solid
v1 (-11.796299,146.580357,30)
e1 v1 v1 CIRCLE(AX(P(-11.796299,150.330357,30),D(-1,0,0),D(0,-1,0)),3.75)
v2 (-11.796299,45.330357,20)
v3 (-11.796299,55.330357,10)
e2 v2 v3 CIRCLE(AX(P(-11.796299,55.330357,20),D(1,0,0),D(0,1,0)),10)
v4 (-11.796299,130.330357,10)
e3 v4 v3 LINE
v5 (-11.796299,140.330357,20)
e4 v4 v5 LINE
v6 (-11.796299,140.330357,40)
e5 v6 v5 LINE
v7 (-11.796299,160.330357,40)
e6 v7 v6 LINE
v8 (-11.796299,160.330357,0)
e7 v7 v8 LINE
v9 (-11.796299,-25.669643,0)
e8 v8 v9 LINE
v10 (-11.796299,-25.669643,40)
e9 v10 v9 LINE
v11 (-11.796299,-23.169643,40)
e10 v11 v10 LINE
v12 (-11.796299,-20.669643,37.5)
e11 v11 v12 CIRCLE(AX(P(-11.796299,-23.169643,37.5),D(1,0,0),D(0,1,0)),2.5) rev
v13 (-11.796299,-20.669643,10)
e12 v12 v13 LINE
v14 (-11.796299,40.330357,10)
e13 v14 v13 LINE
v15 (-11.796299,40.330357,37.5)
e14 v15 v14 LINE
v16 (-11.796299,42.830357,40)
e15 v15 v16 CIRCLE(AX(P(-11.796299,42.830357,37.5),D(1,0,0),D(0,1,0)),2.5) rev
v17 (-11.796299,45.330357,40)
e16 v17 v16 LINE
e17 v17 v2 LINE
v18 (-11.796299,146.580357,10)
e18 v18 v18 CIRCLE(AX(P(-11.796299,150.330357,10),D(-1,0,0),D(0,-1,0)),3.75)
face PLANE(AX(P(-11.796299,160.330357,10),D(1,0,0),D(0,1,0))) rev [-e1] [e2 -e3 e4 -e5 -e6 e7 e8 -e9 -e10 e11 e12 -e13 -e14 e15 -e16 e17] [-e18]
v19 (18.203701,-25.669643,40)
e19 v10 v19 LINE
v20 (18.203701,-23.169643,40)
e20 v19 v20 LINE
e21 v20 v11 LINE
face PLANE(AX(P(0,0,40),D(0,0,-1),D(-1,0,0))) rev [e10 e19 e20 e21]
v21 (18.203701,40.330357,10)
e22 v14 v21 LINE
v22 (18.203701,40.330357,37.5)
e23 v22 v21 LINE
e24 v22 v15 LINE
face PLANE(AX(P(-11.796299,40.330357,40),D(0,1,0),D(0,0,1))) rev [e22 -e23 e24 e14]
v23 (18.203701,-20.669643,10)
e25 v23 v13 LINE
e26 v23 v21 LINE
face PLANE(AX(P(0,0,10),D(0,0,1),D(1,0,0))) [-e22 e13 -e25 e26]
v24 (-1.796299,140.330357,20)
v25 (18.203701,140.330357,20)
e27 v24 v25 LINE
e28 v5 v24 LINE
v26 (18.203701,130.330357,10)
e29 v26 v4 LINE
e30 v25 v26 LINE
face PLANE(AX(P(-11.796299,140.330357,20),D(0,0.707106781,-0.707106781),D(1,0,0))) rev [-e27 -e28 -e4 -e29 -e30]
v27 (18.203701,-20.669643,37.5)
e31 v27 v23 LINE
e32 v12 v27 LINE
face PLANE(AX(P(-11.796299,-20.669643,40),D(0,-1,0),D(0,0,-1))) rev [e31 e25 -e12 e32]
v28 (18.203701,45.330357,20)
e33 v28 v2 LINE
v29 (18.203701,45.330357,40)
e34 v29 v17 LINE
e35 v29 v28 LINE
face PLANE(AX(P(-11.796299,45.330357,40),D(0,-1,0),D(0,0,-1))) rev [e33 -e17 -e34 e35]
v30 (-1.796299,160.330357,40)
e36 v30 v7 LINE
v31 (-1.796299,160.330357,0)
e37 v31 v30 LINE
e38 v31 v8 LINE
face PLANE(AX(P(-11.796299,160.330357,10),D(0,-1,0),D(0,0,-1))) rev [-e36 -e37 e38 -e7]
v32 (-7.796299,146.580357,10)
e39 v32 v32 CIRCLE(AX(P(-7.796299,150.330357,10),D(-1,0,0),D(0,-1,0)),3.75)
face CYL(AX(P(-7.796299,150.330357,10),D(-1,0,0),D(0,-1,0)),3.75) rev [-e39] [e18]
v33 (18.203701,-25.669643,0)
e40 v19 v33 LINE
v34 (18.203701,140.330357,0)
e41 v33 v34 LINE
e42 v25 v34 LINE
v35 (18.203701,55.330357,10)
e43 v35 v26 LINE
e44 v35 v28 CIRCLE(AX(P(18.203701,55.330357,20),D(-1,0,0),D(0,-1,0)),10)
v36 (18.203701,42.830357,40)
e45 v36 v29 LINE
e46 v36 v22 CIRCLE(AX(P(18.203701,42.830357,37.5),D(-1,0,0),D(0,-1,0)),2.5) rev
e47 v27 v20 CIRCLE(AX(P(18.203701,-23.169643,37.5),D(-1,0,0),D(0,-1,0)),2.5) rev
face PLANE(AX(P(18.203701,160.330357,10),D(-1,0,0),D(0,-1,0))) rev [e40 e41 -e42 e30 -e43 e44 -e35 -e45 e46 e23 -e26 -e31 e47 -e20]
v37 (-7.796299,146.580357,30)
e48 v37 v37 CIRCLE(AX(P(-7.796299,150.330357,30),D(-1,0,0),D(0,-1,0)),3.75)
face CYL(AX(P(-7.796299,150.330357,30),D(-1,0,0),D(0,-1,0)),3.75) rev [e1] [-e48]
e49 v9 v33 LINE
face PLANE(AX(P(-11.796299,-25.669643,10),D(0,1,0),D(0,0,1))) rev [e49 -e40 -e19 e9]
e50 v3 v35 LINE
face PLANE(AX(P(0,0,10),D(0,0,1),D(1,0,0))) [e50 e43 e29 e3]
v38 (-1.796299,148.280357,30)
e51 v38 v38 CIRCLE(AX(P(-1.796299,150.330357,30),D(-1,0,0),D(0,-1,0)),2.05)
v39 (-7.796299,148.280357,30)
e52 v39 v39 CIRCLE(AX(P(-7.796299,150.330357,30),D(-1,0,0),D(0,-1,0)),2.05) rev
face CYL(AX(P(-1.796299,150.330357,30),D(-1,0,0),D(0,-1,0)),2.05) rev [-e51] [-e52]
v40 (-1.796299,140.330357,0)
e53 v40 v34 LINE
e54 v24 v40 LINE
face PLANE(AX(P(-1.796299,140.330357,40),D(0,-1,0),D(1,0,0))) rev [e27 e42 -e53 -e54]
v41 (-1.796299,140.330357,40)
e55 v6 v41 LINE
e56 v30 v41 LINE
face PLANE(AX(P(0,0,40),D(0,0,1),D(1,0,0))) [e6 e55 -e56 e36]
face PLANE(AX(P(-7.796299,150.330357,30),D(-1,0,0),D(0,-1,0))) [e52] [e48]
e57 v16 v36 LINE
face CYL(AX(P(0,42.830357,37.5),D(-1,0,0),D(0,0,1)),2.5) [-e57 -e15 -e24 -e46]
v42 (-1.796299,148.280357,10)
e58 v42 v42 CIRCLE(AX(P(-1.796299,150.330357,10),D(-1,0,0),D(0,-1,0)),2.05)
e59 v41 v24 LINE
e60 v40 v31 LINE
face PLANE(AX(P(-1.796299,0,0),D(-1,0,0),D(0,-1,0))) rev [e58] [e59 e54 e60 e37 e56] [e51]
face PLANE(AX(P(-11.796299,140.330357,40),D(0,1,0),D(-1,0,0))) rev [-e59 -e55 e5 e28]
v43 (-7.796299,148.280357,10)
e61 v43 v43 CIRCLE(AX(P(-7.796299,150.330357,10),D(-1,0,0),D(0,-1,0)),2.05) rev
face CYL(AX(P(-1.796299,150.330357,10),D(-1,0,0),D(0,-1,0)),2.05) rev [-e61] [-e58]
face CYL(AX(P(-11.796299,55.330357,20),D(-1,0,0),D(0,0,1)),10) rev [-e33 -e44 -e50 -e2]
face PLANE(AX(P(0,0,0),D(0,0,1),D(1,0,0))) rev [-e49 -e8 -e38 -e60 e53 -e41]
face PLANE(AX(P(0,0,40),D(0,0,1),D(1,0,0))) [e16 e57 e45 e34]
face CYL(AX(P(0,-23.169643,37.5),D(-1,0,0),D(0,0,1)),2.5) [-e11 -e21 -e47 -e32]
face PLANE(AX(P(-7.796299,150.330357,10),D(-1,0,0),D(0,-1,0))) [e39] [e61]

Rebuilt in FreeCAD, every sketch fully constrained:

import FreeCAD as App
import Part
import Sketcher

V = App.Vector
Q = App.Units.Quantity


def edges_at(feature, points):
    """Names of the edges that pass closest to the given points."""
    edges = feature.Shape.Edges
    near = lambda p: min(range(len(edges)), key=lambda i: edges[i].distToShape(Part.Vertex(*p))[0])
    return sorted({f"Edge{near(p) + 1}" for p in points})


def add_polygon(sketch, points):
    """Adds a closed chain of lines whose ends are joined by coincident constraints."""
    first, n = sketch.GeometryCount, len(points)
    for a, b in zip(points, points[1:] + points[:1]):
        sketch.addGeometry(Part.LineSegment(App.Vector(*a, 0), App.Vector(*b, 0)), False)
    for i in range(n):
        sketch.addConstraint(Sketcher.Constraint("Coincident", first + i, 2, first + (i + 1) % n, 1))

doc = App.newDocument("Part")
body = doc.addObject("PartDesign::Body", "Body")

# Sketch on XY plane
sketch1 = doc.addObject("Sketcher::SketchObject", "Sketch")
body.addObject(sketch1)
sketch1.AttachmentSupport = (doc.XY_Plane, [""])
sketch1.MapMode = "FlatFace"
add_polygon(sketch1, [(-11.796299, 160.330357), (-11.796299, -25.669643), (18.203701, -25.669643), (18.203701, 160.330357)])  # lines 0-3
sketch1.addConstraint([
    Sketcher.Constraint("Vertical", 0),
    Sketcher.Constraint("Horizontal", 1),
    Sketcher.Constraint("Vertical", 2),
    Sketcher.Constraint("Horizontal", 3),
    Sketcher.Constraint("DistanceX", 1, 1, 1, 2, Q("30 mm")),
    Sketcher.Constraint("DistanceY", 0, 2, 0, 1, Q("186 mm")),
    Sketcher.Constraint("DistanceX", 0, 2, -1, 1, Q("11.796299 mm")),
    Sketcher.Constraint("DistanceY", 0, 2, -1, 1, Q("25.669643 mm")),
])
pad1 = doc.addObject("PartDesign::Pad", "Pad")
body.addObject(pad1)
pad1.Profile = sketch1
pad1.Length = 10

# Sketch on XY plane
sketch2 = doc.addObject("Sketcher::SketchObject", "Sketch001")
body.addObject(sketch2)
sketch2.AttachmentSupport = (doc.XY_Plane, [""])
sketch2.MapMode = "FlatFace"
sketch2.AttachmentOffset = App.Placement(V(0, 0, 10), App.Rotation())
add_polygon(sketch2, [(-11.796299, -20.669643), (-11.796299, -25.669643), (18.203701, -25.669643), (18.203701, -20.669643)])  # lines 0-3
add_polygon(sketch2, [(-11.796299, 45.330357), (-11.796299, 40.330357), (18.203701, 40.330357), (18.203701, 45.330357)])  # lines 4-7
add_polygon(sketch2, [(-11.796299, 160.330357), (-11.796299, 140.330357), (18.203701, 140.330357), (18.203701, 160.330357)])  # lines 8-11
sketch2.addConstraint([
    Sketcher.Constraint("Vertical", 0),
    Sketcher.Constraint("Horizontal", 1),
    Sketcher.Constraint("Vertical", 2),
    Sketcher.Constraint("Horizontal", 3),
    Sketcher.Constraint("Vertical", 4),
    Sketcher.Constraint("Horizontal", 5),
    Sketcher.Constraint("Vertical", 6),
    Sketcher.Constraint("Horizontal", 7),
    Sketcher.Constraint("Vertical", 8),
    Sketcher.Constraint("Horizontal", 9),
    Sketcher.Constraint("Vertical", 10),
    Sketcher.Constraint("Horizontal", 11),
    Sketcher.Constraint("Vertical", 3, 2, 4, 2),
    Sketcher.Constraint("Vertical", 2, 2, 5, 2),
    Sketcher.Constraint("Vertical", 7, 2, 8, 2),
    Sketcher.Constraint("Vertical", 6, 2, 9, 2),
    Sketcher.Constraint("Equal", 2, 4),
    Sketcher.Constraint("DistanceX", 1, 1, 1, 2, Q("30 mm")),
    Sketcher.Constraint("DistanceY", 0, 2, 0, 1, Q("5 mm")),
    Sketcher.Constraint("DistanceY", 8, 2, 8, 1, Q("20 mm")),
    Sketcher.Constraint("DistanceY", 3, 2, 4, 2, Q("61 mm")),
    Sketcher.Constraint("DistanceY", 7, 2, 8, 2, Q("95 mm")),
    Sketcher.Constraint("DistanceX", 0, 2, -1, 1, Q("11.796299 mm")),
    Sketcher.Constraint("DistanceY", 0, 2, -1, 1, Q("25.669643 mm")),
])
pad2 = doc.addObject("PartDesign::Pad", "Pad001")
body.addObject(pad2)
pad2.Profile = sketch2
pad2.Length = 30
doc.recompute()

fillet = doc.addObject("PartDesign::Fillet", "Fillet")
body.addObject(fillet)
fillet.Base = (pad2, edges_at(pad2, [(3.204, -20.67, 40), (3.204, 40.33, 40)]))
fillet.Radius = 2.5
doc.recompute()

fillet2 = doc.addObject("PartDesign::Fillet", "Fillet001")
body.addObject(fillet2)
fillet2.Base = (fillet, edges_at(fillet, [(3.204, 45.33, 10)]))
fillet2.Radius = 10
doc.recompute()

chamfer = doc.addObject("PartDesign::Chamfer", "Chamfer")
body.addObject(chamfer)
chamfer.Base = (fillet2, edges_at(fillet2, [(3.204, 140.33, 10)]))
chamfer.Size = 10

# Sketch on YZ plane
sketch3 = doc.addObject("Sketcher::SketchObject", "Sketch002")
body.addObject(sketch3)
sketch3.AttachmentSupport = (doc.YZ_Plane, [""])
sketch3.MapMode = "FlatFace"
sketch3.AttachmentOffset = App.Placement(V(0, 0, 18.203701), App.Rotation())
add_polygon(sketch3, [(160.330357, 40), (140.330357, 40), (140.330357, 0), (160.330357, 0)])  # lines 0-3
sketch3.addConstraint([
    Sketcher.Constraint("Horizontal", 0),
    Sketcher.Constraint("Vertical", 1),
    Sketcher.Constraint("Horizontal", 2),
    Sketcher.Constraint("Vertical", 3),
    Sketcher.Constraint("PointOnObject", 1, 2, -1),
    Sketcher.Constraint("DistanceX", 0, 2, 0, 1, Q("20 mm")),
    Sketcher.Constraint("DistanceY", 1, 2, 1, 1, Q("40 mm")),
    Sketcher.Constraint("DistanceX", -1, 1, 0, 2, Q("140.330357 mm")),
])
pocket1 = doc.addObject("PartDesign::Pocket", "Pocket")
body.addObject(pocket1)
pocket1.Profile = sketch3
pocket1.Length = 20

# Sketch on YZ plane
sketch4 = doc.addObject("Sketcher::SketchObject", "Sketch003")
body.addObject(sketch4)
sketch4.AttachmentSupport = (doc.YZ_Plane, [""])
sketch4.MapMode = "FlatFace"
sketch4.AttachmentOffset = App.Placement(V(0, 0, -11.796299), App.Rotation())
sketch4.addGeometry([
    Part.Circle(V(150.330357, 10, 0), V(0, 0, 1), 2.05),
    Part.Circle(V(150.330357, 30, 0), V(0, 0, 1), 2.05),
], False)
sketch4.addConstraint([
    Sketcher.Constraint("Equal", 0, 1),
    Sketcher.Constraint("Vertical", 0, 3, 1, 3),
    Sketcher.Constraint("Diameter", 0, Q("4.1 mm")),
    Sketcher.Constraint("DistanceY", -1, 1, 0, 3, Q("10 mm")),
    Sketcher.Constraint("DistanceY", -1, 1, 1, 3, Q("30 mm")),
    Sketcher.Constraint("DistanceX", -1, 1, 0, 3, Q("150.330357 mm")),
])
pocket2 = doc.addObject("PartDesign::Pocket", "Pocket001")
body.addObject(pocket2)
pocket2.Profile = sketch4
pocket2.Length = 10
pocket2.Reversed = True

# Sketch on YZ plane
sketch5 = doc.addObject("Sketcher::SketchObject", "Sketch004")
body.addObject(sketch5)
sketch5.AttachmentSupport = (doc.YZ_Plane, [""])
sketch5.MapMode = "FlatFace"
sketch5.AttachmentOffset = App.Placement(V(0, 0, -11.796299), App.Rotation())
sketch5.addGeometry([
    Part.Circle(V(150.330357, 10, 0), V(0, 0, 1), 3.75),
    Part.Circle(V(150.330357, 30, 0), V(0, 0, 1), 3.75),
], False)
sketch5.addConstraint([
    Sketcher.Constraint("Equal", 0, 1),
    Sketcher.Constraint("Vertical", 0, 3, 1, 3),
    Sketcher.Constraint("Diameter", 0, Q("7.5 mm")),
    Sketcher.Constraint("DistanceY", -1, 1, 0, 3, Q("10 mm")),
    Sketcher.Constraint("DistanceY", -1, 1, 1, 3, Q("30 mm")),
    Sketcher.Constraint("DistanceX", -1, 1, 0, 3, Q("150.330357 mm")),
])
pocket3 = doc.addObject("PartDesign::Pocket", "Pocket002")
body.addObject(pocket3)
pocket3.Profile = sketch5
pocket3.Length = 4
pocket3.Reversed = True

doc.recompute()
